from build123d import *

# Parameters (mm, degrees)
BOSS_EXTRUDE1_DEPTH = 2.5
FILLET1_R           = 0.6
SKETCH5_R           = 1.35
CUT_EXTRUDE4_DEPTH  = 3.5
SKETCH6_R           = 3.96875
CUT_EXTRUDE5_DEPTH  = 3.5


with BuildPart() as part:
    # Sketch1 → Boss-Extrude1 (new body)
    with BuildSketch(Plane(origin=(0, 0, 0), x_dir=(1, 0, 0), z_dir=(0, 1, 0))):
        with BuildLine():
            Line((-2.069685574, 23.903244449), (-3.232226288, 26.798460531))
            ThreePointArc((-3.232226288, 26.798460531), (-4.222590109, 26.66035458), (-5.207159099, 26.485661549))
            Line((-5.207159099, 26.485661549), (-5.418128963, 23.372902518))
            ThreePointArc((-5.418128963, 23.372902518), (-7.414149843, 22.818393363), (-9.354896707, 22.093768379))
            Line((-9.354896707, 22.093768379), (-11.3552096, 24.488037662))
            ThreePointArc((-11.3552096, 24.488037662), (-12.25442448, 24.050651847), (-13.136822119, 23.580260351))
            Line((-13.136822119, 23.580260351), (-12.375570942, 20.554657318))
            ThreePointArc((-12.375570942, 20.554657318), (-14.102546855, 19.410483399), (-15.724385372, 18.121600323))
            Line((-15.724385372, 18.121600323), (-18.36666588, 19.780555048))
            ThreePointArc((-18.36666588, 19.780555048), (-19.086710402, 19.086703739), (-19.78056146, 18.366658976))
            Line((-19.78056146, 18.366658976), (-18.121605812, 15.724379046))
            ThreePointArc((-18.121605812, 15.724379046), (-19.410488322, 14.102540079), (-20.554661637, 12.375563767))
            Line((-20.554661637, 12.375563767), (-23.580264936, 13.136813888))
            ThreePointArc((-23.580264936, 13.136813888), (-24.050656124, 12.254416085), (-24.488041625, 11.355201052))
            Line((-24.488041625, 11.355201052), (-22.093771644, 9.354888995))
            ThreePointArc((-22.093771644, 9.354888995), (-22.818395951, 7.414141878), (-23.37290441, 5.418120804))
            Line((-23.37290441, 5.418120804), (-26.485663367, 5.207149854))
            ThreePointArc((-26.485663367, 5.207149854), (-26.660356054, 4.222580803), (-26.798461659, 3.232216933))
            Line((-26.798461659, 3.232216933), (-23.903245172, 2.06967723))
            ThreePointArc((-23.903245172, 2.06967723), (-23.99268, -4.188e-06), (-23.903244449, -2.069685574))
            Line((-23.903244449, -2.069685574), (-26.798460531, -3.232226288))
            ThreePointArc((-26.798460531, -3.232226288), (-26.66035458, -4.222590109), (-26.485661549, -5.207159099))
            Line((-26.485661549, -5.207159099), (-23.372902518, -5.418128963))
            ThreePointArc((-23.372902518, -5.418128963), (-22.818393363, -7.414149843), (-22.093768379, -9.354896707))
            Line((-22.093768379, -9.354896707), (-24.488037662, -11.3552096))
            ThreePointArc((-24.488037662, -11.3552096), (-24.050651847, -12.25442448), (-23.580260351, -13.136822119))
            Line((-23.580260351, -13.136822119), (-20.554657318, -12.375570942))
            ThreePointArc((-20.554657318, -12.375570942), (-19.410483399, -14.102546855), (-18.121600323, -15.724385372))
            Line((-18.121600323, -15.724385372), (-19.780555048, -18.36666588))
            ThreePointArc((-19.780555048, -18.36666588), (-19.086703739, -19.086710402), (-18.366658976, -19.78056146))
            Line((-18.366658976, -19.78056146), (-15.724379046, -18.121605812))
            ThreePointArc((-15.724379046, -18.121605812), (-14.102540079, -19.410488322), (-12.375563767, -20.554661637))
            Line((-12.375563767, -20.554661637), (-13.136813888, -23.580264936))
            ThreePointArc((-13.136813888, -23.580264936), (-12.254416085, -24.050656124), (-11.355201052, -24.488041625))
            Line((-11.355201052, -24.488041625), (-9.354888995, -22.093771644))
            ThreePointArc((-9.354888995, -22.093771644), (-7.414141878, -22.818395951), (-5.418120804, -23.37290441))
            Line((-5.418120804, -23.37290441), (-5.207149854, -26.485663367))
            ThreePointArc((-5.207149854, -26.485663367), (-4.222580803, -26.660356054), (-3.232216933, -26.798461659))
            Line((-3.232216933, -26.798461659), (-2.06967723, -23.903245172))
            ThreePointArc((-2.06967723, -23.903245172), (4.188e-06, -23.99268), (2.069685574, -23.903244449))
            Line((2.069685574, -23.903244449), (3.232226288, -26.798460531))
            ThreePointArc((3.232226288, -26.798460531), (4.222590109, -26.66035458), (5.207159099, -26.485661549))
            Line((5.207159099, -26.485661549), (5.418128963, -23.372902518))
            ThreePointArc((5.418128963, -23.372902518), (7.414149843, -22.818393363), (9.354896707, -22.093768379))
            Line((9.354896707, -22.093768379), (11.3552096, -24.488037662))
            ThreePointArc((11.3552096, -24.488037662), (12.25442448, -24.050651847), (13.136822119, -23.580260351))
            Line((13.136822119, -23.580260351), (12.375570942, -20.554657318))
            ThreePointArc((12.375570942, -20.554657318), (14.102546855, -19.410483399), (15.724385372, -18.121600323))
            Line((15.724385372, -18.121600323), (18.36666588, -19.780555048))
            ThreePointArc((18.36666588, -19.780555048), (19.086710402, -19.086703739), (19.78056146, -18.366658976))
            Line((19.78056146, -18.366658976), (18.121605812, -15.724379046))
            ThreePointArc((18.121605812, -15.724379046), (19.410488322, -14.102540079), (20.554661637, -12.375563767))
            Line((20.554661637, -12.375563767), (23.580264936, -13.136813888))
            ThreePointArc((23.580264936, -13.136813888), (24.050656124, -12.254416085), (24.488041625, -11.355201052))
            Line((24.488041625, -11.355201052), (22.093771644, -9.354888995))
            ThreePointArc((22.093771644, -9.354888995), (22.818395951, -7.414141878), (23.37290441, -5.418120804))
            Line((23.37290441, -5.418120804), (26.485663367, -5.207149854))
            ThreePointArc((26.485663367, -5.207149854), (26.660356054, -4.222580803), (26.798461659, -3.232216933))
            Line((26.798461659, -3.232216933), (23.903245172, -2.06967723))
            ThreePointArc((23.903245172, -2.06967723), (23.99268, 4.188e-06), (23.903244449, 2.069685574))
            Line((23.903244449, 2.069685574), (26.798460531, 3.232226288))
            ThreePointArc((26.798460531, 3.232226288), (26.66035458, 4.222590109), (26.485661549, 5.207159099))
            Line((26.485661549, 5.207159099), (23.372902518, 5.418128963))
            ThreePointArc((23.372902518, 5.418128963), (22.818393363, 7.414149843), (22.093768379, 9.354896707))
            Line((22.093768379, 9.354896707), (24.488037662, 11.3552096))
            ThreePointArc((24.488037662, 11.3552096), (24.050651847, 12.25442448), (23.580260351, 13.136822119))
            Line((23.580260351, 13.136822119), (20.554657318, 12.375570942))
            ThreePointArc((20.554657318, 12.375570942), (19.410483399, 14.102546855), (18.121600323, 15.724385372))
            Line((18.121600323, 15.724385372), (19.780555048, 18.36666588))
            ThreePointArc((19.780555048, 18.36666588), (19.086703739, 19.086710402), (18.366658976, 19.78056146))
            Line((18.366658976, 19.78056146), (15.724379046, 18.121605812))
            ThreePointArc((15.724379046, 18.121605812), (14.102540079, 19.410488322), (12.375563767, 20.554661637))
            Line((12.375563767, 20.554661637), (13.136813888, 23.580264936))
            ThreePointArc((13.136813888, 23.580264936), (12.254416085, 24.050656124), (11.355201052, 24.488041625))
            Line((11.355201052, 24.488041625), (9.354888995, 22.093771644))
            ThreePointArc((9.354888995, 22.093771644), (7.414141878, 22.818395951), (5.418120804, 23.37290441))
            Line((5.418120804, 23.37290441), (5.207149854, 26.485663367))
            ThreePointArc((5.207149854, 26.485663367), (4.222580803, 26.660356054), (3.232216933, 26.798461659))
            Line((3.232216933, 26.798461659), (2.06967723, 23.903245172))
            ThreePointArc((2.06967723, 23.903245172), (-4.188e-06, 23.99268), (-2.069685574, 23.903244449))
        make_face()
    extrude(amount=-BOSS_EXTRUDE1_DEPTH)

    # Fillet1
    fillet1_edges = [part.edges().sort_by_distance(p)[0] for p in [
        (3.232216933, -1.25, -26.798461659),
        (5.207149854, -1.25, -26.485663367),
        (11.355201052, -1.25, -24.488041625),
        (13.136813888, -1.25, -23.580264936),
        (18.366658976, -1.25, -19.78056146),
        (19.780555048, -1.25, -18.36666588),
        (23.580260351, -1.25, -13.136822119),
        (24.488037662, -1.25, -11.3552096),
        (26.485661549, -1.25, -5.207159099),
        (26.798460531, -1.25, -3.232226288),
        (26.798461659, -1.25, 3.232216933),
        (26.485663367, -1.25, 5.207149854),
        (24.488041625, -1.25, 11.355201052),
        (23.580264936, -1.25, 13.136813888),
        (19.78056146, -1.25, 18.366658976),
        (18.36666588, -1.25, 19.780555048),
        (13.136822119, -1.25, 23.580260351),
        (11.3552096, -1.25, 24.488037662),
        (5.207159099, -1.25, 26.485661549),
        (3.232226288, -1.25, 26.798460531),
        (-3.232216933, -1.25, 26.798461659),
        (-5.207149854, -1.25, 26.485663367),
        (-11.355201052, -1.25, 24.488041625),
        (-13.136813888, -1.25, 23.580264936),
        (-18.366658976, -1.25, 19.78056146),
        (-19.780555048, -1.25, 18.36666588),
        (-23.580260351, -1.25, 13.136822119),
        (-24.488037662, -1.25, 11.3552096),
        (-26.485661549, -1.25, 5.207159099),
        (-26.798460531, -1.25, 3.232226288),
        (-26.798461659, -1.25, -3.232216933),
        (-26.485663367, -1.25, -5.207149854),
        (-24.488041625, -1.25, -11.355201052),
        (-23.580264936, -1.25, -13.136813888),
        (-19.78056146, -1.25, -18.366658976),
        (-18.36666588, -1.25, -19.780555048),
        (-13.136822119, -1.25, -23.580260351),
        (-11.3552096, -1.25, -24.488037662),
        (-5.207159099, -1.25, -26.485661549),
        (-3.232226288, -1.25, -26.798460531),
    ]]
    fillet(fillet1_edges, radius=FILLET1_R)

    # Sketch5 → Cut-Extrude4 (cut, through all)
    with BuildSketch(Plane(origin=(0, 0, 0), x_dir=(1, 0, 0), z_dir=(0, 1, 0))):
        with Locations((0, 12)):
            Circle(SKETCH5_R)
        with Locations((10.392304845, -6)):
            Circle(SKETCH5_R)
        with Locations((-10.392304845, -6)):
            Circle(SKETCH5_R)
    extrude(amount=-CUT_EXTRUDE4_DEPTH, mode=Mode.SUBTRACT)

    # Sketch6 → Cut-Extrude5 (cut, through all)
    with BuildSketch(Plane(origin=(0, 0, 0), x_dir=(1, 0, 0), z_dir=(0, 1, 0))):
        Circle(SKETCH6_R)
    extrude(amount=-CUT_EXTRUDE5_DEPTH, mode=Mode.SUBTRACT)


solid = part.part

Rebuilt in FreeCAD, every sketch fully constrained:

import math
import FreeCAD as App
import Part
import Sketcher
Q = App.Units.Quantity


def edges_at(feature, points):
    """Names of the edges that pass closest to the given points."""
    edges = feature.Shape.Edges
    near = lambda p: min(range(len(edges)), key=lambda i: edges[i].distToShape(Part.Vertex(*p))[0])
    return sorted({f"Edge{near(p) + 1}" for p in points})

doc = App.newDocument("Part")
body = doc.addObject("PartDesign::Body", "Body")

# Sketch on XZ plane
sketch1 = body.newObject("Sketcher::SketchObject", "Sketch")
sketch1.AttachmentSupport = (doc.getObject("XZ_Plane"), [""])
sketch1.MapMode = "FlatFace"
sketch1.addGeometry([
    Part.LineSegment(App.Vector(-2.1, -23.9, 0), App.Vector(-3.2, -26.8, 0)),  # 0
    Part.ArcOfCircle(Part.Circle(App.Vector(0, 0, 0), App.Vector(0, 0, 1), 27), math.radians(-101.12), math.radians(-96.88)),  # 1
    Part.LineSegment(App.Vector(-5.2, -26.5, 0), App.Vector(-5.4, -23.4, 0)),  # 2
    Part.ArcOfCircle(Part.Circle(App.Vector(0, 0, 0), App.Vector(0, 0, 1), 24), math.radians(-112.95), math.radians(-103.05)),  # 3
    Part.LineSegment(App.Vector(-9.4, -22.1, 0), App.Vector(-11.4, -24.5, 0)),  # 4
    Part.ArcOfCircle(Part.Circle(App.Vector(0, 0, 0), App.Vector(0, 0, 1), 27), math.radians(-119.12), math.radians(-114.88)),  # 5
    Part.LineSegment(App.Vector(-13.1, -23.6, 0), App.Vector(-12.4, -20.6, 0)),  # 6
    Part.ArcOfCircle(Part.Circle(App.Vector(0, 0, 0), App.Vector(0, 0, 1), 24), math.radians(-130.95), math.radians(-121.05)),  # 7
    Part.LineSegment(App.Vector(-15.7, -18.1, 0), App.Vector(-18.4, -19.8, 0)),  # 8
    Part.ArcOfCircle(Part.Circle(App.Vector(0, 0, 0), App.Vector(0, 0, 1), 27), math.radians(-137.12), math.radians(-132.88)),  # 9
    Part.LineSegment(App.Vector(-19.8, -18.4, 0), App.Vector(-18.1, -15.7, 0)),  # 10
    Part.ArcOfCircle(Part.Circle(App.Vector(0, 0, 0), App.Vector(0, 0, 1), 24), math.radians(-148.95), math.radians(-139.05)),  # 11
    Part.LineSegment(App.Vector(-20.6, -12.4, 0), App.Vector(-23.6, -13.1, 0)),  # 12
    Part.ArcOfCircle(Part.Circle(App.Vector(0, 0, 0), App.Vector(0, 0, 1), 27), math.radians(-155.12), math.radians(-150.88)),  # 13
    Part.LineSegment(App.Vector(-24.5, -11.4, 0), App.Vector(-22.1, -9.4, 0)),  # 14
    Part.ArcOfCircle(Part.Circle(App.Vector(0, 0, 0), App.Vector(0, 0, 1), 24), math.radians(-166.95), math.radians(-157.05)),  # 15
    Part.LineSegment(App.Vector(-23.4, -5.4, 0), App.Vector(-26.5, -5.2, 0)),  # 16
    Part.ArcOfCircle(Part.Circle(App.Vector(0, 0, 0), App.Vector(0, 0, 1), 27), math.radians(-173.12), math.radians(-168.88)),  # 17
    Part.LineSegment(App.Vector(-26.8, -3.2, 0), App.Vector(-23.9, -2.1, 0)),  # 18
    Part.ArcOfCircle(Part.Circle(App.Vector(0, 0, 0), App.Vector(0, 0, 1), 24), math.radians(175.05), math.radians(184.95)),  # 19
    Part.LineSegment(App.Vector(-23.9, 2.1, 0), App.Vector(-26.8, 3.2, 0)),  # 20
    Part.ArcOfCircle(Part.Circle(App.Vector(0, 0, 0), App.Vector(0, 0, 1), 27), math.radians(168.88), math.radians(173.12)),  # 21
    Part.LineSegment(App.Vector(-26.5, 5.2, 0), App.Vector(-23.4, 5.4, 0)),  # 22
    Part.ArcOfCircle(Part.Circle(App.Vector(0, 0, 0), App.Vector(0, 0, 1), 24), math.radians(157.05), math.radians(166.95)),  # 23
    Part.LineSegment(App.Vector(-22.1, 9.4, 0), App.Vector(-24.5, 11.4, 0)),  # 24
    Part.ArcOfCircle(Part.Circle(App.Vector(0, 0, 0), App.Vector(0, 0, 1), 27), math.radians(150.88), math.radians(155.12)),  # 25
    Part.LineSegment(App.Vector(-23.6, 13.1, 0), App.Vector(-20.6, 12.4, 0)),  # 26
    Part.ArcOfCircle(Part.Circle(App.Vector(0, 0, 0), App.Vector(0, 0, 1), 24), math.radians(139.05), math.radians(148.95)),  # 27
    Part.LineSegment(App.Vector(-18.1, 15.7, 0), App.Vector(-19.8, 18.4, 0)),  # 28
    Part.ArcOfCircle(Part.Circle(App.Vector(0, 0, 0), App.Vector(0, 0, 1), 27), math.radians(132.88), math.radians(137.12)),  # 29
    Part.LineSegment(App.Vector(-18.4, 19.8, 0), App.Vector(-15.7, 18.1, 0)),  # 30
    Part.ArcOfCircle(Part.Circle(App.Vector(0, 0, 0), App.Vector(0, 0, 1), 24), math.radians(121.05), math.radians(130.95)),  # 31
    Part.LineSegment(App.Vector(-12.4, 20.6, 0), App.Vector(-13.1, 23.6, 0)),  # 32
    Part.ArcOfCircle(Part.Circle(App.Vector(0, 0, 0), App.Vector(0, 0, 1), 27), math.radians(114.88), math.radians(119.12)),  # 33
    Part.LineSegment(App.Vector(-11.4, 24.5, 0), App.Vector(-9.4, 22.1, 0)),  # 34
    Part.ArcOfCircle(Part.Circle(App.Vector(0, 0, 0), App.Vector(0, 0, 1), 24), math.radians(103.05), math.radians(112.95)),  # 35
    Part.LineSegment(App.Vector(-5.4, 23.4, 0), App.Vector(-5.2, 26.5, 0)),  # 36
    Part.ArcOfCircle(Part.Circle(App.Vector(0, 0, 0), App.Vector(0, 0, 1), 27), math.radians(96.88), math.radians(101.12)),  # 37
    Part.LineSegment(App.Vector(-3.2, 26.8, 0), App.Vector(-2.1, 23.9, 0)),  # 38
    Part.ArcOfCircle(Part.Circle(App.Vector(0, 0, 0), App.Vector(0, 0, 1), 24), math.radians(85.05), math.radians(94.95)),  # 39
    Part.LineSegment(App.Vector(2.1, 23.9, 0), App.Vector(3.2, 26.8, 0)),  # 40
    Part.ArcOfCircle(Part.Circle(App.Vector(0, 0, 0), App.Vector(0, 0, 1), 27), math.radians(78.88), math.radians(83.12)),  # 41
    Part.LineSegment(App.Vector(5.2, 26.5, 0), App.Vector(5.4, 23.4, 0)),  # 42
    Part.ArcOfCircle(Part.Circle(App.Vector(0, 0, 0), App.Vector(0, 0, 1), 24), math.radians(67.05), math.radians(76.95)),  # 43
    Part.LineSegment(App.Vector(9.4, 22.1, 0), App.Vector(11.4, 24.5, 0)),  # 44
    Part.ArcOfCircle(Part.Circle(App.Vector(0, 0, 0), App.Vector(0, 0, 1), 27), math.radians(60.88), math.radians(65.12)),  # 45
    Part.LineSegment(App.Vector(13.1, 23.6, 0), App.Vector(12.4, 20.6, 0)),  # 46
    Part.ArcOfCircle(Part.Circle(App.Vector(0, 0, 0), App.Vector(0, 0, 1), 24), math.radians(49.05), math.radians(58.95)),  # 47
    Part.LineSegment(App.Vector(15.7, 18.1, 0), App.Vector(18.4, 19.8, 0)),  # 48
    Part.ArcOfCircle(Part.Circle(App.Vector(0, 0, 0), App.Vector(0, 0, 1), 27), math.radians(42.88), math.radians(47.12)),  # 49
    Part.LineSegment(App.Vector(19.8, 18.4, 0), App.Vector(18.1, 15.7, 0)),  # 50
    Part.ArcOfCircle(Part.Circle(App.Vector(0, 0, 0), App.Vector(0, 0, 1), 24), math.radians(31.05), math.radians(40.95)),  # 51
    Part.LineSegment(App.Vector(20.6, 12.4, 0), App.Vector(23.6, 13.1, 0)),  # 52
    Part.ArcOfCircle(Part.Circle(App.Vector(0, 0, 0), App.Vector(0, 0, 1), 27), math.radians(24.88), math.radians(29.12)),  # 53
    Part.LineSegment(App.Vector(24.5, 11.4, 0), App.Vector(22.1, 9.4, 0)),  # 54
    Part.ArcOfCircle(Part.Circle(App.Vector(0, 0, 0), App.Vector(0, 0, 1), 24), math.radians(13.05), math.radians(22.95)),  # 55
    Part.LineSegment(App.Vector(23.4, 5.4, 0), App.Vector(26.5, 5.2, 0)),  # 56
    Part.ArcOfCircle(Part.Circle(App.Vector(0, 0, 0), App.Vector(0, 0, 1), 27), math.radians(6.88), math.radians(11.12)),  # 57
    Part.LineSegment(App.Vector(26.8, 3.2, 0), App.Vector(23.9, 2.1, 0)),  # 58
    Part.ArcOfCircle(Part.Circle(App.Vector(0, 0, 0), App.Vector(0, 0, 1), 24), math.radians(-4.95), math.radians(4.95)),  # 59
    Part.LineSegment(App.Vector(23.9, -2.1, 0), App.Vector(26.8, -3.2, 0)),  # 60
    Part.ArcOfCircle(Part.Circle(App.Vector(0, 0, 0), App.Vector(0, 0, 1), 27), math.radians(-11.12), math.radians(-6.88)),  # 61
    Part.LineSegment(App.Vector(26.5, -5.2, 0), App.Vector(23.4, -5.4, 0)),  # 62
    Part.ArcOfCircle(Part.Circle(App.Vector(0, 0, 0), App.Vector(0, 0, 1), 24), math.radians(-22.95), math.radians(-13.05)),  # 63
    Part.LineSegment(App.Vector(22.1, -9.4, 0), App.Vector(24.5, -11.4, 0)),  # 64
    Part.ArcOfCircle(Part.Circle(App.Vector(0, 0, 0), App.Vector(0, 0, 1), 27), math.radians(-29.12), math.radians(-24.88)),  # 65
    Part.LineSegment(App.Vector(23.6, -13.1, 0), App.Vector(20.6, -12.4, 0)),  # 66
    Part.ArcOfCircle(Part.Circle(App.Vector(0, 0, 0), App.Vector(0, 0, 1), 24), math.radians(-40.95), math.radians(-31.05)),  # 67
    Part.LineSegment(App.Vector(18.1, -15.7, 0), App.Vector(19.8, -18.4, 0)),  # 68
    Part.ArcOfCircle(Part.Circle(App.Vector(0, 0, 0), App.Vector(0, 0, 1), 27), math.radians(-47.12), math.radians(-42.88)),  # 69
    Part.LineSegment(App.Vector(18.4, -19.8, 0), App.Vector(15.7, -18.1, 0)),  # 70
    Part.ArcOfCircle(Part.Circle(App.Vector(0, 0, 0), App.Vector(0, 0, 1), 24), math.radians(-58.95), math.radians(-49.05)),  # 71
    Part.LineSegment(App.Vector(12.4, -20.6, 0), App.Vector(13.1, -23.6, 0)),  # 72
    Part.ArcOfCircle(Part.Circle(App.Vector(0, 0, 0), App.Vector(0, 0, 1), 27), math.radians(-65.12), math.radians(-60.88)),  # 73
    Part.LineSegment(App.Vector(11.4, -24.5, 0), App.Vector(9.4, -22.1, 0)),  # 74
    Part.ArcOfCircle(Part.Circle(App.Vector(0, 0, 0), App.Vector(0, 0, 1), 24), math.radians(-76.95), math.radians(-67.05)),  # 75
    Part.LineSegment(App.Vector(5.4, -23.4, 0), App.Vector(5.2, -26.5, 0)),  # 76
    Part.ArcOfCircle(Part.Circle(App.Vector(0, 0, 0), App.Vector(0, 0, 1), 27), math.radians(-83.12), math.radians(-78.88)),  # 77
    Part.LineSegment(App.Vector(3.2, -26.8, 0), App.Vector(2.1, -23.9, 0)),  # 78
    Part.ArcOfCircle(Part.Circle(App.Vector(0, 0, 0), App.Vector(0, 0, 1), 24), math.radians(-94.95), math.radians(-85.05)),  # 79
], False)
sketch1.addConstraint([
    Sketcher.Constraint("Coincident", 0, 2, 1, 2),
    Sketcher.Constraint("Coincident", 1, 1, 2, 1),
    Sketcher.Constraint("Coincident", 2, 2, 3, 2),
    Sketcher.Constraint("Coincident", 3, 1, 4, 1),
    Sketcher.Constraint("Coincident", 4, 2, 5, 2),
    Sketcher.Constraint("Coincident", 5, 1, 6, 1),
    Sketcher.Constraint("Coincident", 6, 2, 7, 2),
    Sketcher.Constraint("Coincident", 7, 1, 8, 1),
    Sketcher.Constraint("Coincident", 8, 2, 9, 2),
    Sketcher.Constraint("Coincident", 9, 1, 10, 1),
    Sketcher.Constraint("Coincident", 10, 2, 11, 2),
    Sketcher.Constraint("Coincident", 11, 1, 12, 1),
    Sketcher.Constraint("Coincident", 12, 2, 13, 2),
    Sketcher.Constraint("Coincident", 13, 1, 14, 1),
    Sketcher.Constraint("Coincident", 14, 2, 15, 2),
    Sketcher.Constraint("Coincident", 15, 1, 16, 1),
    Sketcher.Constraint("Coincident", 16, 2, 17, 2),
    Sketcher.Constraint("Coincident", 17, 1, 18, 1),
    Sketcher.Constraint("Coincident", 18, 2, 19, 2),
    Sketcher.Constraint("Coincident", 19, 1, 20, 1),
    Sketcher.Constraint("Coincident", 20, 2, 21, 2),
    Sketcher.Constraint("Coincident", 21, 1, 22, 1),
    Sketcher.Constraint("Coincident", 22, 2, 23, 2),
    Sketcher.Constraint("Coincident", 23, 1, 24, 1),
    Sketcher.Constraint("Coincident", 24, 2, 25, 2),
    Sketcher.Constraint("Coincident", 25, 1, 26, 1),
    Sketcher.Constraint("Coincident", 26, 2, 27, 2),
    Sketcher.Constraint("Coincident", 27, 1, 28, 1),
    Sketcher.Constraint("Coincident", 28, 2, 29, 2),
    Sketcher.Constraint("Coincident", 29, 1, 30, 1),
    Sketcher.Constraint("Coincident", 30, 2, 31, 2),
    Sketcher.Constraint("Coincident", 31, 1, 32, 1),
    Sketcher.Constraint("Coincident", 32, 2, 33, 2),
    Sketcher.Constraint("Coincident", 33, 1, 34, 1),
    Sketcher.Constraint("Coincident", 34, 2, 35, 2),
    Sketcher.Constraint("Coincident", 35, 1, 36, 1),
    Sketcher.Constraint("Coincident", 36, 2, 37, 2),
    Sketcher.Constraint("Coincident", 37, 1, 38, 1),
    Sketcher.Constraint("Coincident", 38, 2, 39, 2),
    Sketcher.Constraint("Coincident", 39, 1, 40, 1),
    Sketcher.Constraint("Coincident", 40, 2, 41, 2),
    Sketcher.Constraint("Coincident", 41, 1, 42, 1),
    Sketcher.Constraint("Coincident", 42, 2, 43, 2),
    Sketcher.Constraint("Coincident", 43, 1, 44, 1),
    Sketcher.Constraint("Coincident", 44, 2, 45, 2),
    Sketcher.Constraint("Coincident", 45, 1, 46, 1),
    Sketcher.Constraint("Coincident", 46, 2, 47, 2),
    Sketcher.Constraint("Coincident", 47, 1, 48, 1),
    Sketcher.Constraint("Coincident", 48, 2, 49, 2),
    Sketcher.Constraint("Coincident", 49, 1, 50, 1),
    Sketcher.Constraint("Coincident", 50, 2, 51, 2),
    Sketcher.Constraint("Coincident", 51, 1, 52, 1),
    Sketcher.Constraint("Coincident", 52, 2, 53, 2),
    Sketcher.Constraint("Coincident", 53, 1, 54, 1),
    Sketcher.Constraint("Coincident", 54, 2, 55, 2),
    Sketcher.Constraint("Coincident", 55, 1, 56, 1),
    Sketcher.Constraint("Coincident", 56, 2, 57, 2),
    Sketcher.Constraint("Coincident", 57, 1, 58, 1),
    Sketcher.Constraint("Coincident", 58, 2, 59, 2),
    Sketcher.Constraint("Coincident", 59, 1, 60, 1),
    Sketcher.Constraint("Coincident", 60, 2, 61, 2),
    Sketcher.Constraint("Coincident", 61, 1, 62, 1),
    Sketcher.Constraint("Coincident", 62, 2, 63, 2),
    Sketcher.Constraint("Coincident", 63, 1, 64, 1),
    Sketcher.Constraint("Coincident", 64, 2, 65, 2),
    Sketcher.Constraint("Coincident", 65, 1, 66, 1),
    Sketcher.Constraint("Coincident", 66, 2, 67, 2),
    Sketcher.Constraint("Coincident", 67, 1, 68, 1),
    Sketcher.Constraint("Coincident", 68, 2, 69, 2),
    Sketcher.Constraint("Coincident", 69, 1, 70, 1),
    Sketcher.Constraint("Coincident", 70, 2, 71, 2),
    Sketcher.Constraint("Coincident", 71, 1, 72, 1),
    Sketcher.Constraint("Coincident", 72, 2, 73, 2),
    Sketcher.Constraint("Coincident", 73, 1, 74, 1),
    Sketcher.Constraint("Coincident", 74, 2, 75, 2),
    Sketcher.Constraint("Coincident", 75, 1, 76, 1),
    Sketcher.Constraint("Coincident", 76, 2, 77, 2),
    Sketcher.Constraint("Coincident", 77, 1, 78, 1),
    Sketcher.Constraint("Coincident", 78, 2, 79, 2),
    Sketcher.Constraint("Coincident", 79, 1, 0, 1),
    Sketcher.Constraint("Coincident", 1, 3, -1, 1),
    Sketcher.Constraint("Coincident", 3, 3, -1, 1),
    Sketcher.Constraint("Coincident", 5, 3, -1, 1),
    Sketcher.Constraint("Coincident", 7, 3, -1, 1),
    Sketcher.Constraint("Coincident", 9, 3, -1, 1),
    Sketcher.Constraint("Coincident", 11, 3, -1, 1),
    Sketcher.Constraint("Coincident", 13, 3, -1, 1),
    Sketcher.Constraint("Coincident", 15, 3, -1, 1),
    Sketcher.Constraint("Coincident", 17, 3, -1, 1),
    Sketcher.Constraint("Coincident", 19, 3, -1, 1),
    Sketcher.Constraint("Coincident", 21, 3, -1, 1),
    Sketcher.Constraint("Coincident", 23, 3, -1, 1),
    Sketcher.Constraint("Coincident", 25, 3, -1, 1),
    Sketcher.Constraint("Coincident", 27, 3, -1, 1),
    Sketcher.Constraint("Coincident", 29, 3, -1, 1),
    Sketcher.Constraint("Coincident", 31, 3, -1, 1),
    Sketcher.Constraint("Coincident", 33, 3, -1, 1),
    Sketcher.Constraint("Coincident", 35, 3, -1, 1),
    Sketcher.Constraint("Coincident", 37, 3, -1, 1),
    Sketcher.Constraint("Coincident", 39, 3, -1, 1),
    Sketcher.Constraint("Coincident", 41, 3, -1, 1),
    Sketcher.Constraint("Coincident", 43, 3, -1, 1),
    Sketcher.Constraint("Coincident", 45, 3, -1, 1),
    Sketcher.Constraint("Coincident", 47, 3, -1, 1),
    Sketcher.Constraint("Coincident", 49, 3, -1, 1),
    Sketcher.Constraint("Coincident", 51, 3, -1, 1),
    Sketcher.Constraint("Coincident", 53, 3, -1, 1),
    Sketcher.Constraint("Coincident", 55, 3, -1, 1),
    Sketcher.Constraint("Coincident", 57, 3, -1, 1),
    Sketcher.Constraint("Coincident", 59, 3, -1, 1),
    Sketcher.Constraint("Coincident", 61, 3, -1, 1),
    Sketcher.Constraint("Coincident", 63, 3, -1, 1),
    Sketcher.Constraint("Coincident", 65, 3, -1, 1),
    Sketcher.Constraint("Coincident", 67, 3, -1, 1),
    Sketcher.Constraint("Coincident", 69, 3, -1, 1),
    Sketcher.Constraint("Coincident", 71, 3, -1, 1),
    Sketcher.Constraint("Coincident", 73, 3, -1, 1),
    Sketcher.Constraint("Coincident", 75, 3, -1, 1),
    Sketcher.Constraint("Coincident", 77, 3, -1, 1),
    Sketcher.Constraint("Coincident", 79, 3, -1, 1),
    Sketcher.Constraint("Equal", 1, 5),
    Sketcher.Constraint("Equal", 3, 7),
    Sketcher.Constraint("Equal", 5, 9),
    Sketcher.Constraint("Equal", 7, 11),
    Sketcher.Constraint("Equal", 9, 13),
    Sketcher.Constraint("Equal", 11, 15),
    Sketcher.Constraint("Equal", 13, 17),
    Sketcher.Constraint("Equal", 15, 19),
    Sketcher.Constraint("Equal", 17, 21),
    Sketcher.Constraint("Equal", 19, 23),
    Sketcher.Constraint("Equal", 21, 25),
    Sketcher.Constraint("Equal", 23, 27),
    Sketcher.Constraint("Equal", 25, 29),
    Sketcher.Constraint("Equal", 27, 31),
    Sketcher.Constraint("Equal", 29, 33),
    Sketcher.Constraint("Equal", 31, 35),
    Sketcher.Constraint("Equal", 33, 37),
    Sketcher.Constraint("Equal", 35, 39),
    Sketcher.Constraint("Equal", 37, 41),
    Sketcher.Constraint("Equal", 39, 43),
    Sketcher.Constraint("Equal", 41, 45),
    Sketcher.Constraint("Equal", 43, 47),
    Sketcher.Constraint("Equal", 45, 49),
    Sketcher.Constraint("Equal", 47, 51),
    Sketcher.Constraint("Equal", 49, 53),
    Sketcher.Constraint("Equal", 51, 55),
    Sketcher.Constraint("Equal", 53, 57),
    Sketcher.Constraint("Equal", 55, 59),
    Sketcher.Constraint("Equal", 57, 61),
    Sketcher.Constraint("Equal", 59, 63),
    Sketcher.Constraint("Equal", 61, 65),
    Sketcher.Constraint("Equal", 63, 67),
    Sketcher.Constraint("Equal", 65, 69),
    Sketcher.Constraint("Equal", 67, 71),
    Sketcher.Constraint("Equal", 69, 73),
    Sketcher.Constraint("Equal", 71, 75),
    Sketcher.Constraint("Equal", 73, 77),
    Sketcher.Constraint("Equal", 75, 79),
    Sketcher.Constraint("Perpendicular", 0, 20),
    Sketcher.Constraint("Perpendicular", 2, 22),
    Sketcher.Constraint("Perpendicular", 4, 24),
    Sketcher.Constraint("Perpendicular", 6, 26),
    Sketcher.Constraint("Perpendicular", 8, 28),
    Sketcher.Constraint("Perpendicular", 10, 30),
    Sketcher.Constraint("Perpendicular", 12, 32),
    Sketcher.Constraint("Perpendicular", 14, 34),
    Sketcher.Constraint("Perpendicular", 16, 36),
    Sketcher.Constraint("Perpendicular", 18, 38),
    Sketcher.Constraint("Perpendicular", 20, 40),
    Sketcher.Constraint("Perpendicular", 22, 42),
    Sketcher.Constraint("Perpendicular", 24, 44),
    Sketcher.Constraint("Perpendicular", 26, 46),
    Sketcher.Constraint("Perpendicular", 28, 48),
    Sketcher.Constraint("Perpendicular", 30, 50),
    Sketcher.Constraint("Perpendicular", 32, 52),
    Sketcher.Constraint("Perpendicular", 34, 54),
    Sketcher.Constraint("Perpendicular", 36, 56),
    Sketcher.Constraint("Perpendicular", 38, 58),
    Sketcher.Constraint("Perpendicular", 40, 60),
    Sketcher.Constraint("Perpendicular", 42, 62),
    Sketcher.Constraint("Perpendicular", 44, 64),
    Sketcher.Constraint("Perpendicular", 46, 66),
    Sketcher.Constraint("Perpendicular", 48, 68),
    Sketcher.Constraint("Perpendicular", 50, 70),
    Sketcher.Constraint("Perpendicular", 52, 72),
    Sketcher.Constraint("Perpendicular", 54, 74),
    Sketcher.Constraint("Perpendicular", 56, 76),
    Sketcher.Constraint("Perpendicular", 58, 78),
    Sketcher.Constraint("Horizontal", 38, 2, 39, 1),
    Sketcher.Constraint("Horizontal", 37, 1, 40, 2),
    Sketcher.Constraint("Horizontal", 36, 2, 41, 1),
    Sketcher.Constraint("Horizontal", 35, 1, 42, 2),
    Sketcher.Constraint("Horizontal", 2, 2, 75, 1),
    Sketcher.Constraint("Horizontal", 0, 2, 77, 1),
    Sketcher.Constraint("Vertical", 18, 2, 19, 1),
    Sketcher.Constraint("Vertical", 16, 2, 21, 1),
    Sketcher.Constraint("Vertical", 58, 2, 59, 1),
    Sketcher.Constraint("Vertical", 56, 2, 61, 1),
    Sketcher.Constraint("Equal", 0, 2),
    Sketcher.Constraint("Equal", 2, 4),
    Sketcher.Constraint("Equal", 4, 6),
    Sketcher.Constraint("Equal", 6, 8),
    Sketcher.Constraint("Equal", 8, 10),
    Sketcher.Constraint("Equal", 10, 12),
    Sketcher.Constraint("Equal", 12, 14),
    Sketcher.Constraint("Equal", 14, 16),
    Sketcher.Constraint("Equal", 16, 18),
    Sketcher.Constraint("Equal", 22, 24),
    Sketcher.Constraint("Equal", 24, 26),
    Sketcher.Constraint("Equal", 26, 28),
    Sketcher.Constraint("Equal", 28, 30),
    Sketcher.Constraint("Equal", 30, 32),
    Sketcher.Constraint("Equal", 32, 34),
    Sketcher.Constraint("Equal", 34, 36),
    Sketcher.Constraint("Equal", 36, 38),
    Sketcher.Constraint("Equal", 42, 44),
    Sketcher.Constraint("Equal", 44, 46),
    Sketcher.Constraint("Equal", 46, 48),
    Sketcher.Constraint("Equal", 48, 50),
    Sketcher.Constraint("Equal", 50, 52),
    Sketcher.Constraint("Equal", 52, 54),
    Sketcher.Constraint("Equal", 54, 56),
    Sketcher.Constraint("Equal", 56, 58),
    Sketcher.Constraint("Equal", 62, 64),
    Sketcher.Constraint("Equal", 64, 66),
    Sketcher.Constraint("Equal", 66, 68),
    Sketcher.Constraint("Equal", 68, 70),
    Sketcher.Constraint("Equal", 70, 72),
    Sketcher.Constraint("Equal", 72, 74),
    Sketcher.Constraint("Radius", 1, Q("26.992681 mm")),
    Sketcher.Constraint("Radius", 3, Q("23.99268 mm")),
    Sketcher.Constraint("Distance", 0, Q("3.1199 mm")),
    Sketcher.Constraint("DistanceY", 7, 1, -1, 1, Q("18.1216 mm")),
    Sketcher.Constraint("DistanceY", 13, 1, -1, 1, Q("11.355201 mm")),
    Sketcher.Constraint("DistanceY", 0, 2, -1, 1, Q("26.798461 mm")),
    Sketcher.Constraint("DistanceX", 1, 1, -1, 1, Q("5.207159 mm")),
    Sketcher.Constraint("DistanceY", 3, 1, -1, 1, Q("22.093768 mm")),
    Sketcher.Constraint("DistanceY", 5, 1, -1, 1, Q("23.58026 mm")),
    Sketcher.Constraint("DistanceX", 9, 1, -1, 1, Q("19.780561 mm")),
    Sketcher.Constraint("DistanceX", 11, 1, -1, 1, Q("20.554662 mm")),
])
pad1 = body.newObject("PartDesign::Pad", "Pad")
pad1.Profile = sketch1
pad1.Length = 2.5
doc.recompute()

fillet = body.newObject("PartDesign::Fillet", "Fillet")
fillet.Base = (pad1, edges_at(pad1, [
    (3.232, -1.25, -26.798),
    (5.207, -1.25, -26.486),
    (11.355, -1.25, -24.488),
    (13.137, -1.25, -23.58),
    (18.367, -1.25, -19.781),
    (19.781, -1.25, -18.367),
    (23.58, -1.25, -13.137),
    (24.488, -1.25, -11.355),
    (26.486, -1.25, -5.207),
    (26.798, -1.25, -3.232),
    (26.798, -1.25, 3.232),
    (26.486, -1.25, 5.207),
    (24.488, -1.25, 11.355),
    (23.58, -1.25, 13.137),
    (19.781, -1.25, 18.367),
    (18.367, -1.25, 19.781),
    (13.137, -1.25, 23.58),
    (11.355, -1.25, 24.488),
    (5.207, -1.25, 26.486),
    (3.232, -1.25, 26.798),
    (-3.232, -1.25, 26.798),
    (-5.207, -1.25, 26.486),
    (-11.355, -1.25, 24.488),
    (-13.137, -1.25, 23.58),
    (-18.367, -1.25, 19.781),
    (-19.781, -1.25, 18.367),
    (-23.58, -1.25, 13.137),
    (-24.488, -1.25, 11.355),
    (-26.486, -1.25, 5.207),
    (-26.798, -1.25, 3.232),
    (-26.798, -1.25, -3.232),
    (-26.486, -1.25, -5.207),
    (-24.488, -1.25, -11.355),
    (-23.58, -1.25, -13.137),
    (-19.781, -1.25, -18.367),
    (-18.367, -1.25, -19.781),
    (-13.137, -1.25, -23.58),
    (-11.355, -1.25, -24.488),
    (-5.207, -1.25, -26.486),
    (-3.232, -1.25, -26.798),
]))
fillet.Radius = 0.6

# Sketch on XZ plane
sketch2 = body.newObject("Sketcher::SketchObject", "Sketch001")
sketch2.AttachmentSupport = (doc.getObject("XZ_Plane"), [""])
sketch2.MapMode = "FlatFace"
sketch2.addGeometry([
    Part.Circle(App.Vector(0, -12, 0), App.Vector(0, 0, 1), 1.4),
    Part.Circle(App.Vector(10.4, 6, 0), App.Vector(0, 0, 1), 1.4),
    Part.Circle(App.Vector(-10.4, 6, 0), App.Vector(0, 0, 1), 1.4),
], False)
sketch2.addConstraint([
    Sketcher.Constraint("Equal", 0, 1),
    Sketcher.Constraint("Equal", 1, 2),
    Sketcher.Constraint("Symmetric", 1, 3, 2, 3, -2),
    Sketcher.Constraint("PointOnObject", 0, 3, -2),
    Sketcher.Constraint("Diameter", 0, Q("2.7 mm")),
    Sketcher.Constraint("DistanceY", 0, 3, -1, 1, Q("12 mm")),
    Sketcher.Constraint("DistanceY", -1, 1, 1, 3, Q("6 mm")),
    Sketcher.Constraint("DistanceX", 2, 3, 1, 3, Q("20.78461 mm")),
])
pocket1 = body.newObject("PartDesign::Pocket", "Pocket")
pocket1.Profile = sketch2
pocket1.Type = "ThroughAll"
pocket1.Reversed = True

# Sketch on XZ plane
sketch3 = body.newObject("Sketcher::SketchObject", "Sketch002")
sketch3.AttachmentSupport = (doc.getObject("XZ_Plane"), [""])
sketch3.MapMode = "FlatFace"
sketch3.addGeometry(Part.Circle(App.Vector(0, 0, 0), App.Vector(0, 0, 1), 4), False)
sketch3.addConstraint([
    Sketcher.Constraint("Coincident", 0, 3, -1, 1),
    Sketcher.Constraint("Diameter", 0, Q("7.9375 mm")),
])
pocket2 = body.newObject("PartDesign::Pocket", "Pocket001")
pocket2.Profile = sketch3
pocket2.Type = "ThroughAll"
pocket2.Reversed = True

doc.recompute()
